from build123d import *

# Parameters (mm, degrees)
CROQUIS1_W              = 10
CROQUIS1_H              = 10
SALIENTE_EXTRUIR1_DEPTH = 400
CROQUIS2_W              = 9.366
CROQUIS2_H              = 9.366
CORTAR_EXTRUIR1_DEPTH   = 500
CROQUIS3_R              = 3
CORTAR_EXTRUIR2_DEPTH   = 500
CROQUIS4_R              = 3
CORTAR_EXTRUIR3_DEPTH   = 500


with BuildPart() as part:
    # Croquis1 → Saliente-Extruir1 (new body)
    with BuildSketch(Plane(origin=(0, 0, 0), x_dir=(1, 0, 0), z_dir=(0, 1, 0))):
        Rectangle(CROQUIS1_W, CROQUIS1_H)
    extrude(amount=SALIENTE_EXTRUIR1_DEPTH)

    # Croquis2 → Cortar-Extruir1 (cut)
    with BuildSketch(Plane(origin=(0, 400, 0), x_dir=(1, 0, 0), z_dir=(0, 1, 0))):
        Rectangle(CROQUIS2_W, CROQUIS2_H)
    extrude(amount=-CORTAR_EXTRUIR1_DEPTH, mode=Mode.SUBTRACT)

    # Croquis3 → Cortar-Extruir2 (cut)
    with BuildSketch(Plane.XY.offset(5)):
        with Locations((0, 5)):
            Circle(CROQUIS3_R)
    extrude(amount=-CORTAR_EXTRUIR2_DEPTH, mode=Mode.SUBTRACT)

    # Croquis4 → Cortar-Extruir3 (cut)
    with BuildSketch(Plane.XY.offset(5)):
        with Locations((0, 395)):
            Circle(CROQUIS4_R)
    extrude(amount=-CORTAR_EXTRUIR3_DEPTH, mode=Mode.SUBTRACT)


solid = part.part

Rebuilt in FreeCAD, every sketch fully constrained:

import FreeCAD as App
import Part
import Sketcher
Q = App.Units.Quantity

doc = App.newDocument("Part")
params = doc.addObject("Spreadsheet::Sheet", "Params")
for row, (alias, value) in enumerate([
    ("sketch1_width", "10 mm"),
    ("pad1_length", "400 mm"),
    ("pocket1_length", "500 mm"),
    ("sketch3_diameter", "6 mm"),
    ("pocket2_length", "500 mm"),
    ("sketch4_diameter", "6 mm"),
    ("pocket3_length", "500 mm"),
], start=1):
    params.set(f"A{row}", alias)
    params.set(f"B{row}", "=" + value)
    params.setAlias(f"B{row}", alias)

body = doc.addObject("PartDesign::Body", "Body")

sketch1 = body.newObject("Sketcher::SketchObject", "Sketch")
sketch1.AttachmentSupport = (doc.getObject("XZ_Plane"), [""])
sketch1.MapMode = "FlatFace"
sketch1.addGeometry([
    Part.LineSegment(App.Vector(-5, -5, 0), App.Vector(-5, 5, 0)),
    Part.LineSegment(App.Vector(-5, 5, 0), App.Vector(5, 5, 0)),
    Part.LineSegment(App.Vector(5, 5, 0), App.Vector(5, -5, 0)),
    Part.LineSegment(App.Vector(5, -5, 0), App.Vector(-5, -5, 0)),
], False)
sketch1.addConstraint([
    Sketcher.Constraint("Coincident", 0, 2, 1, 1),
    Sketcher.Constraint("Coincident", 1, 2, 2, 1),
    Sketcher.Constraint("Coincident", 2, 2, 3, 1),
    Sketcher.Constraint("Coincident", 3, 2, 0, 1),
    Sketcher.Constraint("Vertical", 0),
    Sketcher.Constraint("Horizontal", 1),
    Sketcher.Constraint("Vertical", 2),
    Sketcher.Constraint("Horizontal", 3),
    Sketcher.Constraint("Symmetric", 0, 2, 2, 2, -1, 1),
    Sketcher.Constraint("Equal", 3, 0),
    Sketcher.Constraint("DistanceX", 1, 1, 1, 2, Q("10 mm")),
])
sketch1.setExpression("Constraints[10]", "Params.sketch1_width")
pad1 = body.newObject("PartDesign::Pad", "Pad")
pad1.Profile = sketch1
pad1.setExpression("Length", "Params.pad1_length")
pad1.Reversed = True

sketch2 = body.newObject("Sketcher::SketchObject", "Sketch001")
sketch2.AttachmentSupport = (doc.getObject("XZ_Plane"), [""])
sketch2.MapMode = "FlatFace"
sketch2.AttachmentOffset = App.Placement(App.Vector(0, 0, -400), App.Rotation())
sketch2.addGeometry([
    Part.LineSegment(App.Vector(-5, -5, 0), App.Vector(-5, 5, 0)),
    Part.LineSegment(App.Vector(-5, 5, 0), App.Vector(5, 5, 0)),
    Part.LineSegment(App.Vector(5, 5, 0), App.Vector(5, -5, 0)),
    Part.LineSegment(App.Vector(5, -5, 0), App.Vector(-5, -5, 0)),
], False)
sketch2.addConstraint([
    Sketcher.Constraint("Coincident", 0, 2, 1, 1),
    Sketcher.Constraint("Coincident", 1, 2, 2, 1),
    Sketcher.Constraint("Coincident", 2, 2, 3, 1),
    Sketcher.Constraint("Coincident", 3, 2, 0, 1),
    Sketcher.Constraint("Vertical", 0),
    Sketcher.Constraint("Horizontal", 1),
    Sketcher.Constraint("Vertical", 2),
    Sketcher.Constraint("Horizontal", 3),
    Sketcher.Constraint("Symmetric", 0, 2, 2, 2, -1, 1),
    Sketcher.Constraint("Equal", 3, 0),
    Sketcher.Constraint("DistanceX", 1, 1, 1, 2, Q("9.366 mm")),
])
pocket1 = body.newObject("PartDesign::Pocket", "Pocket")
pocket1.Profile = sketch2
pocket1.setExpression("Length", "Params.pocket1_length")
pocket1.Reversed = True

sketch3 = body.newObject("Sketcher::SketchObject", "Sketch002")
sketch3.AttachmentSupport = (doc.getObject("XY_Plane"), [""])
sketch3.MapMode = "FlatFace"
sketch3.AttachmentOffset = App.Placement(App.Vector(0, 0, 5), App.Rotation())
sketch3.addGeometry(Part.Circle(App.Vector(0, 5, 0), App.Vector(0, 0, 1), 3), False)
sketch3.addConstraint([
    Sketcher.Constraint("PointOnObject", 0, 3, -2),
    Sketcher.Constraint("Diameter", 0, Q("6 mm")),
    Sketcher.Constraint("DistanceY", -1, 1, 0, 3, Q("5 mm")),
])
sketch3.setExpression("Constraints[1]", "Params.sketch3_diameter")
pocket2 = body.newObject("PartDesign::Pocket", "Pocket001")
pocket2.Profile = sketch3
pocket2.setExpression("Length", "Params.pocket2_length")

sketch4 = body.newObject("Sketcher::SketchObject", "Sketch003")
sketch4.AttachmentSupport = (doc.getObject("XY_Plane"), [""])
sketch4.MapMode = "FlatFace"
sketch4.AttachmentOffset = App.Placement(App.Vector(0, 0, 5), App.Rotation())
sketch4.addGeometry(Part.Circle(App.Vector(0, 395, 0), App.Vector(0, 0, 1), 3), False)
sketch4.addConstraint([
    Sketcher.Constraint("PointOnObject", 0, 3, -2),
    Sketcher.Constraint("Diameter", 0, Q("6 mm")),
    Sketcher.Constraint("DistanceY", -1, 1, 0, 3, Q("395 mm")),
])
sketch4.setExpression("Constraints[1]", "Params.sketch4_diameter")
pocket3 = body.newObject("PartDesign::Pocket", "Pocket002")
pocket3.Profile = sketch4
pocket3.setExpression("Length", "Params.pocket3_length")

doc.recompute()
